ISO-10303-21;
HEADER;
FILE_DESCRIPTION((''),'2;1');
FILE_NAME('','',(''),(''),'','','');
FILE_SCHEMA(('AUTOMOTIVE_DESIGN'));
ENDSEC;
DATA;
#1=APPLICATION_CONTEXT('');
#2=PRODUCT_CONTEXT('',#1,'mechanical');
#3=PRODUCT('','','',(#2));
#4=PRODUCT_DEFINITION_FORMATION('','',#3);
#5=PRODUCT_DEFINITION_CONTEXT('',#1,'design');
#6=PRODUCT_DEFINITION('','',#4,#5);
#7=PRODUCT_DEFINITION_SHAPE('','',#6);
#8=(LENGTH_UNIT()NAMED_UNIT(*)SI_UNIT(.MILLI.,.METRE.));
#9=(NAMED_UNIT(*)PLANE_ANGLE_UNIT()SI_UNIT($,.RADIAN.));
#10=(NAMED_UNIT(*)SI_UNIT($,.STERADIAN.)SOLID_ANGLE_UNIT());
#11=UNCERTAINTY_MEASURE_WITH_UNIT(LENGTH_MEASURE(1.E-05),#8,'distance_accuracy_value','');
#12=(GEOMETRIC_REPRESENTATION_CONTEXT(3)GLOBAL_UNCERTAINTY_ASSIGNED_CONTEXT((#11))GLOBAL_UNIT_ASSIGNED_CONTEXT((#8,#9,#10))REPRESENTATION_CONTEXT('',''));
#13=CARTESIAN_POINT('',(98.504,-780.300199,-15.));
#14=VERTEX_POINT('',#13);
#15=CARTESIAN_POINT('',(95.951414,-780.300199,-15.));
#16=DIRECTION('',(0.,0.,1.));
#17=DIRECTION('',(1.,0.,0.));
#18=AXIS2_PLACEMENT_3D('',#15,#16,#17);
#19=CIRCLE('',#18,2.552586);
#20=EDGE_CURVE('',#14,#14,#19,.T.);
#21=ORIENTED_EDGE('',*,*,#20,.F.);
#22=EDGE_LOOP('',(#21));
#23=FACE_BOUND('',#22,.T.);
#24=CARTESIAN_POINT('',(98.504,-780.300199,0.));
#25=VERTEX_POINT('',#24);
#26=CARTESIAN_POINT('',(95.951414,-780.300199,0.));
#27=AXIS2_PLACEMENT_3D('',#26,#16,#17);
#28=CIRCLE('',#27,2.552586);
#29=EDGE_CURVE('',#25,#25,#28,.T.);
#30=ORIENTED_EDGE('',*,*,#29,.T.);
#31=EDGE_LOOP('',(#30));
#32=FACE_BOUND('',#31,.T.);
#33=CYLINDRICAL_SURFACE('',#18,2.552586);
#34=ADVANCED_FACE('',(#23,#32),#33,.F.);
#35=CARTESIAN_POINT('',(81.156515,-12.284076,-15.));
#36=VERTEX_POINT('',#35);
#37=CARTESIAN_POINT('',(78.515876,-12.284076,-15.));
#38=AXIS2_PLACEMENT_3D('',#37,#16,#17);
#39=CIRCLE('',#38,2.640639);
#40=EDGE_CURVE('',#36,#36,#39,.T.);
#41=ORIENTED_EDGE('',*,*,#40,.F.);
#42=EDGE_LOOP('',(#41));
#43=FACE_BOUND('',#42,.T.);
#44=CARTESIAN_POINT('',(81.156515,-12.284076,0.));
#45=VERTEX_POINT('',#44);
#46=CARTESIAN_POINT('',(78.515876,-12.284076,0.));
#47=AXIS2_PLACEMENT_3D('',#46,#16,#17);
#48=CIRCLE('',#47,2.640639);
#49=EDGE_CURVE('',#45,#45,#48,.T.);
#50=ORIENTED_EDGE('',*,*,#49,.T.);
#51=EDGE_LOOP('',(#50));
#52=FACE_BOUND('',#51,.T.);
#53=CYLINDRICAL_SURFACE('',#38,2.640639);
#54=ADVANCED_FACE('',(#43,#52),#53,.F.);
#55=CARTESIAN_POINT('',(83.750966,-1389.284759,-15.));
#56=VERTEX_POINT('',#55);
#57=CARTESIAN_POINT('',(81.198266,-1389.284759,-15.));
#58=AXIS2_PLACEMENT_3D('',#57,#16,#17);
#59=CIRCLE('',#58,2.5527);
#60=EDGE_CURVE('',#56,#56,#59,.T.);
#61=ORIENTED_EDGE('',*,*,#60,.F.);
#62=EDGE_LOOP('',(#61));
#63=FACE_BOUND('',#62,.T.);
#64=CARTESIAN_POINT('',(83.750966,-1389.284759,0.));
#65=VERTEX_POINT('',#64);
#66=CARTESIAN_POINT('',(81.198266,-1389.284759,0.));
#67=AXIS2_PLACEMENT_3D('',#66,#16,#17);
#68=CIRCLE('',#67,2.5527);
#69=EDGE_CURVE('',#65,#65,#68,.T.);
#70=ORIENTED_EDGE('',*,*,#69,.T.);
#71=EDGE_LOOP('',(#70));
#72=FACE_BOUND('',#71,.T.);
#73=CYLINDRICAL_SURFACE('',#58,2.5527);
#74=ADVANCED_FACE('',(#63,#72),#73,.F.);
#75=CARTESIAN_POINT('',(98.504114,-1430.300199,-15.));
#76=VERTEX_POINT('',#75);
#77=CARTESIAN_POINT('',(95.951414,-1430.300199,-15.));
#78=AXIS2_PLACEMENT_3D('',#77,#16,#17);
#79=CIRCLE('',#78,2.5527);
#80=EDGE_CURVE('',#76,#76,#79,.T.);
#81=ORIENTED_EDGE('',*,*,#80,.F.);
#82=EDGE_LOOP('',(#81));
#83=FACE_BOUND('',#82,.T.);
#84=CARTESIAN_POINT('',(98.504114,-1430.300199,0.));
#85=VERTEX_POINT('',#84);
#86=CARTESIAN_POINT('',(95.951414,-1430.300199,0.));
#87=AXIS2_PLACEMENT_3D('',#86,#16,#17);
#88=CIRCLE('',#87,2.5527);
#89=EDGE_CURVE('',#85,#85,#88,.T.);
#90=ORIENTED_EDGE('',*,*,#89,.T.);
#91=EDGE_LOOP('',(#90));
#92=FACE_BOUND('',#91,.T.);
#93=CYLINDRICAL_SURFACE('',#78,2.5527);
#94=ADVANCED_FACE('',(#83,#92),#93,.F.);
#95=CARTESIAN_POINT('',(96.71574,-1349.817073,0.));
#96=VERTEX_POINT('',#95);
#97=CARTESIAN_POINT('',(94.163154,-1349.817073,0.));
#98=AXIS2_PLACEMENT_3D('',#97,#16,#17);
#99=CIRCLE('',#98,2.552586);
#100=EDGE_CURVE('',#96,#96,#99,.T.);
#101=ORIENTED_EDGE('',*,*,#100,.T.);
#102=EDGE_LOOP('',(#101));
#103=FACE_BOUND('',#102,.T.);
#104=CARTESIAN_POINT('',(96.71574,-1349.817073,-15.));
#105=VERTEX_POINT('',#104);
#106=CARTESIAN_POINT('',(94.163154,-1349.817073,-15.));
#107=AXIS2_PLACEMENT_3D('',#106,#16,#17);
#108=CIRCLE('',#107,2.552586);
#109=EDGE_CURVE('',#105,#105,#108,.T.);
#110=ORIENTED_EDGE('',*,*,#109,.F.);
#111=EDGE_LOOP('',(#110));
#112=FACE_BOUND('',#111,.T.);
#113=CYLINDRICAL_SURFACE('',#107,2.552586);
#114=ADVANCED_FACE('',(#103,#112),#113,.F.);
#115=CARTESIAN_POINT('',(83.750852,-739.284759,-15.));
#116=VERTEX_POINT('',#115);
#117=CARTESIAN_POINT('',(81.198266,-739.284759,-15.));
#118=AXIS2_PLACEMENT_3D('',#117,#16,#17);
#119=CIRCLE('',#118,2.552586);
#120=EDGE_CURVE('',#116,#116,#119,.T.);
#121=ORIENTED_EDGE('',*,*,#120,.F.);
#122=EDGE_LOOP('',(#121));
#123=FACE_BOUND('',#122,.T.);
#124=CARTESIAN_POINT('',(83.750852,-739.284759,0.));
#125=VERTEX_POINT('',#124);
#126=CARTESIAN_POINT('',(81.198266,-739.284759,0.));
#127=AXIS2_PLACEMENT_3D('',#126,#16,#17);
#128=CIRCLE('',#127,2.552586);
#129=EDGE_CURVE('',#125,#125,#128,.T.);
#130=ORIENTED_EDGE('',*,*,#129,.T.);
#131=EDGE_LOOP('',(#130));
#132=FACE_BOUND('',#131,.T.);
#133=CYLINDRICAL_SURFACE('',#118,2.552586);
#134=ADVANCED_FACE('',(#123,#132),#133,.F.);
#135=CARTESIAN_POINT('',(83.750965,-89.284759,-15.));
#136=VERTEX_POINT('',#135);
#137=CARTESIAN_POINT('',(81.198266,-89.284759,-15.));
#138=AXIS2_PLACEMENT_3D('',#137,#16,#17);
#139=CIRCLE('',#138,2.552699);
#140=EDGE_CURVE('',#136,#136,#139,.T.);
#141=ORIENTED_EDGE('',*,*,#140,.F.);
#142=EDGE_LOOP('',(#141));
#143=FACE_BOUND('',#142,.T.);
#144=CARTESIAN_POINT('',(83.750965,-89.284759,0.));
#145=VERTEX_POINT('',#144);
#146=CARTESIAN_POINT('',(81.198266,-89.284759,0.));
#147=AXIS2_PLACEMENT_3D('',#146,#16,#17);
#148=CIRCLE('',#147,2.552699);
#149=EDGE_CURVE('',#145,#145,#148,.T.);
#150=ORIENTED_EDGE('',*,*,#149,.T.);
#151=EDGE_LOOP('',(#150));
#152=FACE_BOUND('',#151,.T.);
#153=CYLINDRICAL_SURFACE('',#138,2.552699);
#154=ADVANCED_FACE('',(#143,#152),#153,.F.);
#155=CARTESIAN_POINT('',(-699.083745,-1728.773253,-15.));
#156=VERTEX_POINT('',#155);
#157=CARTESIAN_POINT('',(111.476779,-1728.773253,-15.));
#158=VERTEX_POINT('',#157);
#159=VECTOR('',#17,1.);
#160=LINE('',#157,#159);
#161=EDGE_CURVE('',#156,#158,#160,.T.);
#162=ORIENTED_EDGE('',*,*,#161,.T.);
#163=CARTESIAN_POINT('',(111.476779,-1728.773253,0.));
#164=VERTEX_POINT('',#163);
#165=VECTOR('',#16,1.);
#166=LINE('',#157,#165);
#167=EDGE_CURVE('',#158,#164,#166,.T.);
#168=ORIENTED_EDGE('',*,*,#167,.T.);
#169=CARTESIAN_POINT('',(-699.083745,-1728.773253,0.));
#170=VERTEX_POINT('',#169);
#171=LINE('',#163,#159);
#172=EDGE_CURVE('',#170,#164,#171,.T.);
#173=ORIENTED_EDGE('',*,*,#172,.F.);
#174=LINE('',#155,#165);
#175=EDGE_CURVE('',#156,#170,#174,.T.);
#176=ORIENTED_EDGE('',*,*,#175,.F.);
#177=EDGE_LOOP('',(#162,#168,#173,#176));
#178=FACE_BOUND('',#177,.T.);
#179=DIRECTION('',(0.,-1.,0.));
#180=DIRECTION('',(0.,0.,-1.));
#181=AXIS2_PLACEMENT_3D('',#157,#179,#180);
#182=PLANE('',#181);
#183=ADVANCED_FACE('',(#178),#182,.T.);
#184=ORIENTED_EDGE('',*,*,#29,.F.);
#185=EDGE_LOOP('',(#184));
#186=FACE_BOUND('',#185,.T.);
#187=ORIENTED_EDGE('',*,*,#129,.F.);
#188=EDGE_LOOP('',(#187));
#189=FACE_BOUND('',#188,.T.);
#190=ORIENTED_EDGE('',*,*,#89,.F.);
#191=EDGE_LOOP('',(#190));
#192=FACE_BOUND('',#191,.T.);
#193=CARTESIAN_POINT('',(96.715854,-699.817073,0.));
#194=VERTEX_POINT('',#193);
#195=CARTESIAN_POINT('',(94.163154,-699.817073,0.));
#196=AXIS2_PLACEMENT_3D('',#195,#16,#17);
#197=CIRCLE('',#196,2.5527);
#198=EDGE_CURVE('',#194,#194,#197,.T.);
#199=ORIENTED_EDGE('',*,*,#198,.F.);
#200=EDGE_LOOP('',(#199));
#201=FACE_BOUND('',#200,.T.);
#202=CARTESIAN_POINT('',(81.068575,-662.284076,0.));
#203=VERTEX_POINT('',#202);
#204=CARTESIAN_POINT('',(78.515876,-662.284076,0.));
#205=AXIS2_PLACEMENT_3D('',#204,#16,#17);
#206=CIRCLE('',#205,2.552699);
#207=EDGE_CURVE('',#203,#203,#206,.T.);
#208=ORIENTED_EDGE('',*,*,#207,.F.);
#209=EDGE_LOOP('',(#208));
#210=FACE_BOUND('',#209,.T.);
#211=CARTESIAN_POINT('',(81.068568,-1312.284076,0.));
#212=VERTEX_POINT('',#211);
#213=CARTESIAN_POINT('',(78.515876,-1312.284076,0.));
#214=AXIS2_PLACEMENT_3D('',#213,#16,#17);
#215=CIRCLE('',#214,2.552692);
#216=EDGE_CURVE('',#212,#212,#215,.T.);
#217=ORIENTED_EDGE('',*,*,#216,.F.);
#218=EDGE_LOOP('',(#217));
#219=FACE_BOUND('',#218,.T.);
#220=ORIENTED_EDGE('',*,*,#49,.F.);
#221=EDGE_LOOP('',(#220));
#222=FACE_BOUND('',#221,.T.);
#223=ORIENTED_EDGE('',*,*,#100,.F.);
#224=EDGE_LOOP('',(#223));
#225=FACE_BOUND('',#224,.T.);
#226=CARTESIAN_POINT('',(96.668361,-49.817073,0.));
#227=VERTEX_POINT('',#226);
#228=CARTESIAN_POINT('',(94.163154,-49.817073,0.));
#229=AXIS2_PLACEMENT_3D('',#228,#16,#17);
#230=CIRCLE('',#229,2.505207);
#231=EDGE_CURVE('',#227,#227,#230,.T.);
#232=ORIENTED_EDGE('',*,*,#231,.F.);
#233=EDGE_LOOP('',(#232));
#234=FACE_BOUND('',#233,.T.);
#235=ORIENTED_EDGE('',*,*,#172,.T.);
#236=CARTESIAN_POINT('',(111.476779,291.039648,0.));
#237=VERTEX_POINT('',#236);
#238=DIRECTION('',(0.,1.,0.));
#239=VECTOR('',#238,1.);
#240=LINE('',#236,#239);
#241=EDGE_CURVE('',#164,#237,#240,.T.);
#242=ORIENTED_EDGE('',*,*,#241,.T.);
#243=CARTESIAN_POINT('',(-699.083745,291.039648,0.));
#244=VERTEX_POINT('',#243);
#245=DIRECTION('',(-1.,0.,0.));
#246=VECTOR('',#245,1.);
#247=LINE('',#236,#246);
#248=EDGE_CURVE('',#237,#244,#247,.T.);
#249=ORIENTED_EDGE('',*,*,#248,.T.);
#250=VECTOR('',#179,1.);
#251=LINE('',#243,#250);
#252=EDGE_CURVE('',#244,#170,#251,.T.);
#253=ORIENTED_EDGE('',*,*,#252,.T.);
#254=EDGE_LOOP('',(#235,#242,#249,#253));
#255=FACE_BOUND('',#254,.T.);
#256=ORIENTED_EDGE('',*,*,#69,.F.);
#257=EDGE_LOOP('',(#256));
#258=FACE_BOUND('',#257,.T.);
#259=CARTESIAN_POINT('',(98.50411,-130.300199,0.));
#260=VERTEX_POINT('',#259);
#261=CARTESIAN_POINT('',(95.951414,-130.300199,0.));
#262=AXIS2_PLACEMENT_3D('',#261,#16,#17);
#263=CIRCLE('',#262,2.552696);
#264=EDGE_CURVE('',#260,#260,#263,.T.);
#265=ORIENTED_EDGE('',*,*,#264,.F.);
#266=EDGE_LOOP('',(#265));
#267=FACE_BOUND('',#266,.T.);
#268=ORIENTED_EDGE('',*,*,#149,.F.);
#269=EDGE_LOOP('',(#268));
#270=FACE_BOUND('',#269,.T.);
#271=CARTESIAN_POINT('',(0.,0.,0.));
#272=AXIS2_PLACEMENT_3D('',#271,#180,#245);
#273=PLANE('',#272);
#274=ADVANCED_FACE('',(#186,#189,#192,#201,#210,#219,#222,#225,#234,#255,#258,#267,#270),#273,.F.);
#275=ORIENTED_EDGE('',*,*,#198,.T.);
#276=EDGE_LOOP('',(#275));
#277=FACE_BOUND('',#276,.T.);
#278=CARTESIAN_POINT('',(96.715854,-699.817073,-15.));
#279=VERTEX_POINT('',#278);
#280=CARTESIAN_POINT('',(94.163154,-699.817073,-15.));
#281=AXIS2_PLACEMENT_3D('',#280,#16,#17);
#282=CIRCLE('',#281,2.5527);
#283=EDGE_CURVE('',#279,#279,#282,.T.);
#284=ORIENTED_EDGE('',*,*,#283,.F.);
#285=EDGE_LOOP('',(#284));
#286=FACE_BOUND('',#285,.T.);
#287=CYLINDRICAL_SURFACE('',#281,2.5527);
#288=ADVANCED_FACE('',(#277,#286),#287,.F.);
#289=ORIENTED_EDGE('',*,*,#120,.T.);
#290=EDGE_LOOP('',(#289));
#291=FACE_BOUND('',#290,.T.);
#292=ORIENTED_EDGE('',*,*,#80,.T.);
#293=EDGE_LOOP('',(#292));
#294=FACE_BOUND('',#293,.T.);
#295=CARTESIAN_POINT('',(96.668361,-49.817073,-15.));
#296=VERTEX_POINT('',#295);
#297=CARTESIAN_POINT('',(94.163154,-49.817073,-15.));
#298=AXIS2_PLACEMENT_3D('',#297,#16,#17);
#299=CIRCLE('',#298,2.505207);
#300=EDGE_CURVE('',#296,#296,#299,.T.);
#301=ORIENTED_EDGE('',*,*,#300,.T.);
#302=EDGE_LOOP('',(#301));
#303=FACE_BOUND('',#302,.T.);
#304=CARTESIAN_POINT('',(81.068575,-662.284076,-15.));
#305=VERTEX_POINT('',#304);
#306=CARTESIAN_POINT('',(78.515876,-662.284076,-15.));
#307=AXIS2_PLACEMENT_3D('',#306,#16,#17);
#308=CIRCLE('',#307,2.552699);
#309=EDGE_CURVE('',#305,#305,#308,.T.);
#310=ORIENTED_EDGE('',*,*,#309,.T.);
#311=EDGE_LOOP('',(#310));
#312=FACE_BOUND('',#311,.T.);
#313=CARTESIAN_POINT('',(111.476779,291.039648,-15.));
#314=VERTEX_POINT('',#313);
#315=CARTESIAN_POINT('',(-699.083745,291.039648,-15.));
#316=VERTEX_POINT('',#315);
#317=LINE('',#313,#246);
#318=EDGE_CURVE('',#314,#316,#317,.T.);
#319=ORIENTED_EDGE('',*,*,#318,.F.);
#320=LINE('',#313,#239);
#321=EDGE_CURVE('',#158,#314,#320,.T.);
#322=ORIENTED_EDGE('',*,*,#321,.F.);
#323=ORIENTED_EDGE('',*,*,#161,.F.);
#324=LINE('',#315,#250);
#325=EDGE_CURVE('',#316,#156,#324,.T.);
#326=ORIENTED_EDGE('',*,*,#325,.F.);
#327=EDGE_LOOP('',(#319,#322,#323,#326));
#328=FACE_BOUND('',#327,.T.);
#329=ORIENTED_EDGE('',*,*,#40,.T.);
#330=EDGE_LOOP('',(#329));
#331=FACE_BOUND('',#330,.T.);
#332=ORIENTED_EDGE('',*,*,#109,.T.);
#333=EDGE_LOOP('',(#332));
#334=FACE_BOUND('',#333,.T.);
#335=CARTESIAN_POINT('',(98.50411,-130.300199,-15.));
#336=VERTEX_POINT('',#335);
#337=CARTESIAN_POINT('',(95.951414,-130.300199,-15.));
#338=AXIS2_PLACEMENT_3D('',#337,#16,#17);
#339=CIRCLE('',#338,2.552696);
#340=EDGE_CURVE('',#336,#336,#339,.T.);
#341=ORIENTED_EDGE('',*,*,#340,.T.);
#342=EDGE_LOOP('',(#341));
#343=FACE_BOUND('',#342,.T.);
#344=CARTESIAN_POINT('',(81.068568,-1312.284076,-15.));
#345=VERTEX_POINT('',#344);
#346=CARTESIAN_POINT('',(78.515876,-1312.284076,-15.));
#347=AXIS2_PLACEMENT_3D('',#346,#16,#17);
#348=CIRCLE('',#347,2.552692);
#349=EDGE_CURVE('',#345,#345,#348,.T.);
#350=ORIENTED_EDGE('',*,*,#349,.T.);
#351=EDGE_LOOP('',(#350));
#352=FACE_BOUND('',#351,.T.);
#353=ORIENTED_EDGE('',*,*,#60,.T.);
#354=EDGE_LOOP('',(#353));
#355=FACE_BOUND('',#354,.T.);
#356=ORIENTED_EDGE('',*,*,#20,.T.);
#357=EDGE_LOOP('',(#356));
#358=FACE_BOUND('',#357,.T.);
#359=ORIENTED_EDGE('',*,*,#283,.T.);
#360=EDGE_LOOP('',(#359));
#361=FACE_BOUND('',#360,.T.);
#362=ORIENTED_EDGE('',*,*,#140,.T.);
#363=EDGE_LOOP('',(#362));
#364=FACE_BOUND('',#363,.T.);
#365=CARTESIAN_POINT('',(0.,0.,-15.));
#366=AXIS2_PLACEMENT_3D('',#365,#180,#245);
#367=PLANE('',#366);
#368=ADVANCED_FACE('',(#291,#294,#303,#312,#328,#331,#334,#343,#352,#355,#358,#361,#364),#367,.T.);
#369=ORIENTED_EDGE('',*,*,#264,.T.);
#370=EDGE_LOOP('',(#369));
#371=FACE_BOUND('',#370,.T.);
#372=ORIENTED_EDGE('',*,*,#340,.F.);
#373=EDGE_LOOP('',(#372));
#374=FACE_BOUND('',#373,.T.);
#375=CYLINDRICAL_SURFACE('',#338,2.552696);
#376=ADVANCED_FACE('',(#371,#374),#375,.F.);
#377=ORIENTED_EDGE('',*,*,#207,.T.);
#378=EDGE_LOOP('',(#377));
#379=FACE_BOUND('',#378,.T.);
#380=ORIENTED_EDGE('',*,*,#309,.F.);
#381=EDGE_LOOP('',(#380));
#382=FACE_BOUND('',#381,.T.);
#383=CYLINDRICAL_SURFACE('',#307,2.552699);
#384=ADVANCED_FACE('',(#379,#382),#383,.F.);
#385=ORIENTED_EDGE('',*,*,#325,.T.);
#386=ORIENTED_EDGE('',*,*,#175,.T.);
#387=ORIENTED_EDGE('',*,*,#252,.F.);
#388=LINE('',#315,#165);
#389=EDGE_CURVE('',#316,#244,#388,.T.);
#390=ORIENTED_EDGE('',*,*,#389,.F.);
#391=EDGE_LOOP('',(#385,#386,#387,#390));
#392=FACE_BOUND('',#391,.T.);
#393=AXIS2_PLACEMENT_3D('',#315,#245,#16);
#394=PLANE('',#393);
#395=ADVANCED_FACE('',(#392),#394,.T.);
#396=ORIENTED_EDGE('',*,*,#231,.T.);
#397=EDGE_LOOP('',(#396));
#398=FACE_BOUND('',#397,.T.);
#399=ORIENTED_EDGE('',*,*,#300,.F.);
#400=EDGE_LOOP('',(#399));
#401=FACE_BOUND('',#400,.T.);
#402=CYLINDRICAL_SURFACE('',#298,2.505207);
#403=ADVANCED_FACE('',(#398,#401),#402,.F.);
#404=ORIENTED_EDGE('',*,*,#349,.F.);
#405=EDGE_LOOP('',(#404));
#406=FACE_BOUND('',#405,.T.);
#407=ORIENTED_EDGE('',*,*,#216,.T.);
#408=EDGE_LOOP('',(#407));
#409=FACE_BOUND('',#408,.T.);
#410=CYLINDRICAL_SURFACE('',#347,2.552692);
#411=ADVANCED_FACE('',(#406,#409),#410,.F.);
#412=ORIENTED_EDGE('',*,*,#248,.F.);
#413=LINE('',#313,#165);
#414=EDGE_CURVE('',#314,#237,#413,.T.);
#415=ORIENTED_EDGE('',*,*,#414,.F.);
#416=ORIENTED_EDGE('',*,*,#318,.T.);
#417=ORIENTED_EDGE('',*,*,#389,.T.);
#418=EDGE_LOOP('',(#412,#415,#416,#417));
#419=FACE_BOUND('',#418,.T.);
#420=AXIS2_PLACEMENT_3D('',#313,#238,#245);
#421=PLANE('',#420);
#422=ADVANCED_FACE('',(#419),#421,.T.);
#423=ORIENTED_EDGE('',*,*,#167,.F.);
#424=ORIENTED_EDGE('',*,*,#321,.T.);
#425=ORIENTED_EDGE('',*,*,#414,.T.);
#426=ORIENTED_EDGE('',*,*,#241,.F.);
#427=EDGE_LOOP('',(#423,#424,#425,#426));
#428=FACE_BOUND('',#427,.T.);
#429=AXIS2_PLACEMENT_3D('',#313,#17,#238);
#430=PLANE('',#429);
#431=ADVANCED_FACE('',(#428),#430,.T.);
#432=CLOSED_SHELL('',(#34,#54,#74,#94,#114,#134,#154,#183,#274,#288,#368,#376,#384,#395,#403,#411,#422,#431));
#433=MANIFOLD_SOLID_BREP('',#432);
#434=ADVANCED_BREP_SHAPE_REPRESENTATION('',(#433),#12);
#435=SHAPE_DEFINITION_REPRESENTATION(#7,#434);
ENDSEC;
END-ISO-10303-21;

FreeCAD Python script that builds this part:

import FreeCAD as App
import Part
import Sketcher
from FreeCAD import Vector
Q = App.Units.Quantity


def add_polygon(sketch, points):
    """Adds a closed chain of lines whose ends are joined by coincident constraints."""
    first, n = sketch.GeometryCount, len(points)
    for a, b in zip(points, points[1:] + points[:1]):
        sketch.addGeometry(Part.LineSegment(App.Vector(*a, 0), App.Vector(*b, 0)), False)
    for i in range(n):
        sketch.addConstraint(Sketcher.Constraint("Coincident", first + i, 2, first + (i + 1) % n, 1))

doc = App.newDocument("Part")
body = doc.addObject("PartDesign::Body", "Body")

sketch1 = doc.addObject("Sketcher::SketchObject", "Sketch")
body.addObject(sketch1)
sketch1.AttachmentSupport = (doc.XY_Plane, [""])
sketch1.MapMode = "FlatFace"
add_polygon(sketch1, [(-699, 291), (-699, -1729), (111, -1729), (111, 291)])
sketch1.addConstraint([
    Sketcher.Constraint("Vertical", 0),
    Sketcher.Constraint("Horizontal", 1),
    Sketcher.Constraint("Vertical", 2),
    Sketcher.Constraint("Horizontal", 3),
    Sketcher.Constraint("DistanceY", 0, 2, 0, 1, 2019.812901),
    Sketcher.Constraint("DistanceX", 1, 1, 1, 2, 810.560524),
    Sketcher.Constraint("DistanceX", -1, 1, 1, 2, 111.476779),
    Sketcher.Constraint("DistanceY", 0, 2, -1, 1, 1728.773253),
])
pad1 = doc.addObject("PartDesign::Pad", "Pad")
body.addObject(pad1)
pad1.Profile = sketch1
pad1.Length = 15
pad1.Reversed = True

sketch2 = doc.addObject("Sketcher::SketchObject", "Sketch001")
body.addObject(sketch2)
sketch2.AttachmentSupport = (doc.XY_Plane, [""])
sketch2.MapMode = "FlatFace"
sketch2.addGeometry([
    Part.Circle(Vector(78.5, -12.3, 0), Vector(0, 0, 1), 2.6),
    Part.Circle(Vector(94.2, -49.8, 0), Vector(0, 0, 1), 2.5),
    Part.Circle(Vector(81.2, -89.3, 0), Vector(0, 0, 1), 2.6),
    Part.Circle(Vector(96, -130.3, 0), Vector(0, 0, 1), 2.6),
    Part.Circle(Vector(78.5, -662.3, 0), Vector(0, 0, 1), 2.6),
    Part.Circle(Vector(94.2, -699.8, 0), Vector(0, 0, 1), 2.6),
    Part.Circle(Vector(81.2, -739.3, 0), Vector(0, 0, 1), 2.6),
    Part.Circle(Vector(96, -780.3, 0), Vector(0, 0, 1), 2.6),
    Part.Circle(Vector(78.5, -1312.3, 0), Vector(0, 0, 1), 2.6),
    Part.Circle(Vector(94.2, -1349.8, 0), Vector(0, 0, 1), 2.6),
    Part.Circle(Vector(81.2, -1389.3, 0), Vector(0, 0, 1), 2.6),
    Part.Circle(Vector(96, -1430.3, 0), Vector(0, 0, 1), 2.6),
], False)
sketch2.addConstraint([
    Sketcher.Constraint("Equal", 2, 4),
    Sketcher.Constraint("Equal", 4, 5),
    Sketcher.Constraint("Equal", 6, 7),
    Sketcher.Constraint("Equal", 7, 9),
    Sketcher.Constraint("Equal", 5, 10),
    Sketcher.Constraint("Equal", 10, 11),
    Sketcher.Constraint("Vertical", 0, 3, 4, 3),
    Sketcher.Constraint("Vertical", 1, 3, 5, 3),
    Sketcher.Constraint("Vertical", 2, 3, 6, 3),
    Sketcher.Constraint("Vertical", 3, 3, 7, 3),
    Sketcher.Constraint("Vertical", 4, 3, 8, 3),
    Sketcher.Constraint("Vertical", 5, 3, 9, 3),
    Sketcher.Constraint("Vertical", 6, 3, 10, 3),
    Sketcher.Constraint("Vertical", 7, 3, 11, 3),
    Sketcher.Constraint("Diameter", 2, Q("0.2009999 in")),
    Sketcher.Constraint("Diameter", 3, 5.105391),
    Sketcher.Constraint("Diameter", 0, 5.281277),
    Sketcher.Constraint("Diameter", 1, 5.010414),
    Sketcher.Constraint("Diameter", 6, 5.105172),
    Sketcher.Constraint("Diameter", 8, 5.105384),
    Sketcher.Constraint("DistanceY", 3, 3, -1, 1, 130.300199),
    Sketcher.Constraint("DistanceY", 7, 3, -1, 1, 780.300199),
    Sketcher.Constraint("DistanceY", 11, 3, -1, 1, 1430.300199),
    Sketcher.Constraint("DistanceY", 4, 3, 0, 3, 650.0),
    Sketcher.Constraint("DistanceY", 5, 3, 1, 3, 650.0),
    Sketcher.Constraint("DistanceY", 6, 3, 2, 3, 650.0),
    Sketcher.Constraint("DistanceY", 8, 3, 4, 3, 650.0),
    Sketcher.Constraint("DistanceY", 9, 3, 5, 3, 650.0),
    Sketcher.Constraint("DistanceY", 10, 3, 6, 3, 650.0),
    Sketcher.Constraint("DistanceY", 2, 3, -1, 1, 89.284759),
    Sketcher.Constraint("DistanceX", 0, 3, 2, 3, 2.68239),
    Sketcher.Constraint("DistanceX", 1, 3, 3, 3, 1.78826),
    Sketcher.Constraint("DistanceX", 0, 3, 3, 3, 17.435538),
    Sketcher.Constraint("DistanceX", -1, 1, 0, 3, 78.515876),
    Sketcher.Constraint("DistanceY", 0, 3, -1, 1, 12.284076),
    Sketcher.Constraint("DistanceY", 1, 3, -1, 1, 49.817073),
])
pocket1 = doc.addObject("PartDesign::Pocket", "Pocket")
body.addObject(pocket1)
pocket1.Profile = sketch2
pocket1.Type = "ThroughAll"

doc.recompute()
